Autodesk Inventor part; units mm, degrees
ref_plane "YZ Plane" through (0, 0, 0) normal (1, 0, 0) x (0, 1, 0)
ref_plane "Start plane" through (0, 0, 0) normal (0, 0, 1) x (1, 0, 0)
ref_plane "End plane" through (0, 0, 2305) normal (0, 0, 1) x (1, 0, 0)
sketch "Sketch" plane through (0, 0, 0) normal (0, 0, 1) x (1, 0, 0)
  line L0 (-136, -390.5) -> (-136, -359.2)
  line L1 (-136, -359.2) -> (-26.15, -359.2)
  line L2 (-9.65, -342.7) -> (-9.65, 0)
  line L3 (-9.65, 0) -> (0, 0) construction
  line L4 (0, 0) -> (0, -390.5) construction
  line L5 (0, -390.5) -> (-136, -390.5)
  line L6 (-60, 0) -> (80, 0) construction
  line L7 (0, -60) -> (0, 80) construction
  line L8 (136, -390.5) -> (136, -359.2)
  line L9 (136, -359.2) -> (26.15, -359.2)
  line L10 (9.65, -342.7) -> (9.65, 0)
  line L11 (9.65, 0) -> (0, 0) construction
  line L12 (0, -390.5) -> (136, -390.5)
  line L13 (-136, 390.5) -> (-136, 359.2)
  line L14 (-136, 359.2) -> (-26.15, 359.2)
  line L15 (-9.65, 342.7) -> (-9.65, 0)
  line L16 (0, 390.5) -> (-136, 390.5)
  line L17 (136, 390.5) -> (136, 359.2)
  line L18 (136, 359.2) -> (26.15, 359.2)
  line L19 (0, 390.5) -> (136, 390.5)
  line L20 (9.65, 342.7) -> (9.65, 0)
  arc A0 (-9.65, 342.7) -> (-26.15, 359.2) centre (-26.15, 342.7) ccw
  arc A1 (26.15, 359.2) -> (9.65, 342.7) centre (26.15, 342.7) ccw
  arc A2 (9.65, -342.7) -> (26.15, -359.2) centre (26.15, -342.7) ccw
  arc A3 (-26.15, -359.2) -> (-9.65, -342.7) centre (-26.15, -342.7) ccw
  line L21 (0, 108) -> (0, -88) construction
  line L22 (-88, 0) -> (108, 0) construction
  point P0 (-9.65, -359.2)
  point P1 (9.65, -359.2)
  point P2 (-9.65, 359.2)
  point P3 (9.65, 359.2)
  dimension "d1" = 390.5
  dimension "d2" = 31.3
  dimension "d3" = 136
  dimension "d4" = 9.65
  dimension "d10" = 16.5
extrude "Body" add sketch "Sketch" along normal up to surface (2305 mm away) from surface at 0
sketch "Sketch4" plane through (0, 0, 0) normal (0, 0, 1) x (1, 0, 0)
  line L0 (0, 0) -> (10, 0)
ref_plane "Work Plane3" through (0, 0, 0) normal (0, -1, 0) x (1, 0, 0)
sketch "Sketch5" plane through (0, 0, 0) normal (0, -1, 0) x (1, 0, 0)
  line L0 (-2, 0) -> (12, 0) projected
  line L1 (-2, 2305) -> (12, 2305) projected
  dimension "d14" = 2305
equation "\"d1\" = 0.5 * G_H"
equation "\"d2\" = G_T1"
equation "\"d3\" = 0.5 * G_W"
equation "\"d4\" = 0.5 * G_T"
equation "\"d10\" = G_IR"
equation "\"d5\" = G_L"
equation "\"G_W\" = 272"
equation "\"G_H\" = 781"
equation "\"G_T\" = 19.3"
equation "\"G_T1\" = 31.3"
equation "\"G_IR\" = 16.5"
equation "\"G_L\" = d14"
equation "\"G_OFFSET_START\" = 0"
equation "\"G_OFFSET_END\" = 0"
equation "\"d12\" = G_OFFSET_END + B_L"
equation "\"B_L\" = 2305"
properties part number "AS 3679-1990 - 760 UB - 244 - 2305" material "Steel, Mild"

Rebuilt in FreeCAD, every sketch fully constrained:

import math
import FreeCAD as App
import Part
import Sketcher
Q = App.Units.Quantity

doc = App.newDocument("Part")
params = doc.addObject("Spreadsheet::Sheet", "Params")
for row, (alias, value) in enumerate([
    ("sketch1_radius", "16.5 mm"),
    ("sketch1_height", "31.3 mm"),
    ("pad1_length", "2305 mm"),
], start=1):
    params.set(f"A{row}", alias)
    params.set(f"B{row}", "=" + value)
    params.setAlias(f"B{row}", alias)

body = doc.addObject("PartDesign::Body", "Body")

sketch1 = body.newObject("Sketcher::SketchObject", "Sketch")
sketch1.AttachmentSupport = (doc.getObject("XY_Plane"), [""])
sketch1.MapMode = "FlatFace"
sketch1.addGeometry([
    Part.LineSegment(App.Vector(-136, -359, 0), App.Vector(-136, -390, 0)),
    Part.LineSegment(App.Vector(-136, -390, 0), App.Vector(136, -390, 0)),
    Part.LineSegment(App.Vector(136, -390, 0), App.Vector(136, -359, 0)),
    Part.LineSegment(App.Vector(136, -359, 0), App.Vector(26, -359, 0)),
    Part.ArcOfCircle(Part.Circle(App.Vector(26, -343, 0), App.Vector(0, 0, 1), 16), math.radians(180), math.radians(270)),
    Part.LineSegment(App.Vector(10, -343, 0), App.Vector(10, 343, 0)),
    Part.ArcOfCircle(Part.Circle(App.Vector(26, 343, 0), App.Vector(0, 0, 1), 16), math.radians(90), math.radians(180)),
    Part.LineSegment(App.Vector(26, 359, 0), App.Vector(136, 359, 0)),
    Part.LineSegment(App.Vector(136, 359, 0), App.Vector(136, 390, 0)),
    Part.LineSegment(App.Vector(136, 390, 0), App.Vector(-136, 390, 0)),
    Part.LineSegment(App.Vector(-136, 390, 0), App.Vector(-136, 359, 0)),
    Part.LineSegment(App.Vector(-136, 359, 0), App.Vector(-26, 359, 0)),
    Part.ArcOfCircle(Part.Circle(App.Vector(-26, 343, 0), App.Vector(0, 0, 1), 16), math.radians(0), math.radians(90)),
    Part.LineSegment(App.Vector(-10, 343, 0), App.Vector(-10, -343, 0)),
    Part.ArcOfCircle(Part.Circle(App.Vector(-26, -343, 0), App.Vector(0, 0, 1), 16), math.radians(-90), math.radians(0)),
    Part.LineSegment(App.Vector(-26, -359, 0), App.Vector(-136, -359, 0)),
], False)
sketch1.addConstraint([
    Sketcher.Constraint("Coincident", 0, 2, 1, 1),
    Sketcher.Constraint("Coincident", 1, 2, 2, 1),
    Sketcher.Constraint("Coincident", 2, 2, 3, 1),
    Sketcher.Constraint("Tangent", 3, 2, 4, 2),
    Sketcher.Constraint("Tangent", 4, 1, 5, 1),
    Sketcher.Constraint("Tangent", 5, 2, 6, 2),
    Sketcher.Constraint("Tangent", 6, 1, 7, 1),
    Sketcher.Constraint("Coincident", 7, 2, 8, 1),
    Sketcher.Constraint("Coincident", 8, 2, 9, 1),
    Sketcher.Constraint("Coincident", 9, 2, 10, 1),
    Sketcher.Constraint("Coincident", 10, 2, 11, 1),
    Sketcher.Constraint("Tangent", 11, 2, 12, 2),
    Sketcher.Constraint("Tangent", 12, 1, 13, 1),
    Sketcher.Constraint("Tangent", 13, 2, 14, 2),
    Sketcher.Constraint("Tangent", 14, 1, 15, 1),
    Sketcher.Constraint("Coincident", 15, 2, 0, 1),
    Sketcher.Constraint("Vertical", 0),
    Sketcher.Constraint("Horizontal", 1),
    Sketcher.Constraint("Vertical", 2),
    Sketcher.Constraint("Horizontal", 3),
    Sketcher.Constraint("Vertical", 5),
    Sketcher.Constraint("Horizontal", 7),
    Sketcher.Constraint("Vertical", 8),
    Sketcher.Constraint("Horizontal", 9),
    Sketcher.Constraint("Vertical", 10),
    Sketcher.Constraint("Horizontal", 11),
    Sketcher.Constraint("Vertical", 13),
    Sketcher.Constraint("Horizontal", 15),
    Sketcher.Constraint("Equal", 4, 6),
    Sketcher.Constraint("Equal", 6, 12),
    Sketcher.Constraint("Equal", 12, 14),
    Sketcher.Constraint("Symmetric", 4, 3, 12, 3, -1, 1),
    Sketcher.Constraint("Symmetric", 0, 2, 8, 2, -1, 1),
    Sketcher.Constraint("Symmetric", 7, 2, 10, 2, -2),
    Sketcher.Constraint("Symmetric", 2, 2, 15, 2, -2),
    Sketcher.Constraint("Radius", 4, Q("16.5 mm")),
    Sketcher.Constraint("DistanceY", 0, 2, 0, 1, Q("31.3 mm")),
    Sketcher.Constraint("DistanceX", 0, 2, -1, 1, Q("136 mm")),
    Sketcher.Constraint("DistanceY", 0, 2, -1, 1, Q("390.5 mm")),
    Sketcher.Constraint("DistanceX", -1, 1, 4, 1, Q("9.65 mm")),
])
sketch1.setExpression("Constraints[35]", "Params.sketch1_radius")
sketch1.setExpression("Constraints[36]", "Params.sketch1_height")
pad1 = body.newObject("PartDesign::Pad", "Pad")
pad1.Profile = sketch1
pad1.setExpression("Length", "Params.pad1_length")

doc.recompute()
